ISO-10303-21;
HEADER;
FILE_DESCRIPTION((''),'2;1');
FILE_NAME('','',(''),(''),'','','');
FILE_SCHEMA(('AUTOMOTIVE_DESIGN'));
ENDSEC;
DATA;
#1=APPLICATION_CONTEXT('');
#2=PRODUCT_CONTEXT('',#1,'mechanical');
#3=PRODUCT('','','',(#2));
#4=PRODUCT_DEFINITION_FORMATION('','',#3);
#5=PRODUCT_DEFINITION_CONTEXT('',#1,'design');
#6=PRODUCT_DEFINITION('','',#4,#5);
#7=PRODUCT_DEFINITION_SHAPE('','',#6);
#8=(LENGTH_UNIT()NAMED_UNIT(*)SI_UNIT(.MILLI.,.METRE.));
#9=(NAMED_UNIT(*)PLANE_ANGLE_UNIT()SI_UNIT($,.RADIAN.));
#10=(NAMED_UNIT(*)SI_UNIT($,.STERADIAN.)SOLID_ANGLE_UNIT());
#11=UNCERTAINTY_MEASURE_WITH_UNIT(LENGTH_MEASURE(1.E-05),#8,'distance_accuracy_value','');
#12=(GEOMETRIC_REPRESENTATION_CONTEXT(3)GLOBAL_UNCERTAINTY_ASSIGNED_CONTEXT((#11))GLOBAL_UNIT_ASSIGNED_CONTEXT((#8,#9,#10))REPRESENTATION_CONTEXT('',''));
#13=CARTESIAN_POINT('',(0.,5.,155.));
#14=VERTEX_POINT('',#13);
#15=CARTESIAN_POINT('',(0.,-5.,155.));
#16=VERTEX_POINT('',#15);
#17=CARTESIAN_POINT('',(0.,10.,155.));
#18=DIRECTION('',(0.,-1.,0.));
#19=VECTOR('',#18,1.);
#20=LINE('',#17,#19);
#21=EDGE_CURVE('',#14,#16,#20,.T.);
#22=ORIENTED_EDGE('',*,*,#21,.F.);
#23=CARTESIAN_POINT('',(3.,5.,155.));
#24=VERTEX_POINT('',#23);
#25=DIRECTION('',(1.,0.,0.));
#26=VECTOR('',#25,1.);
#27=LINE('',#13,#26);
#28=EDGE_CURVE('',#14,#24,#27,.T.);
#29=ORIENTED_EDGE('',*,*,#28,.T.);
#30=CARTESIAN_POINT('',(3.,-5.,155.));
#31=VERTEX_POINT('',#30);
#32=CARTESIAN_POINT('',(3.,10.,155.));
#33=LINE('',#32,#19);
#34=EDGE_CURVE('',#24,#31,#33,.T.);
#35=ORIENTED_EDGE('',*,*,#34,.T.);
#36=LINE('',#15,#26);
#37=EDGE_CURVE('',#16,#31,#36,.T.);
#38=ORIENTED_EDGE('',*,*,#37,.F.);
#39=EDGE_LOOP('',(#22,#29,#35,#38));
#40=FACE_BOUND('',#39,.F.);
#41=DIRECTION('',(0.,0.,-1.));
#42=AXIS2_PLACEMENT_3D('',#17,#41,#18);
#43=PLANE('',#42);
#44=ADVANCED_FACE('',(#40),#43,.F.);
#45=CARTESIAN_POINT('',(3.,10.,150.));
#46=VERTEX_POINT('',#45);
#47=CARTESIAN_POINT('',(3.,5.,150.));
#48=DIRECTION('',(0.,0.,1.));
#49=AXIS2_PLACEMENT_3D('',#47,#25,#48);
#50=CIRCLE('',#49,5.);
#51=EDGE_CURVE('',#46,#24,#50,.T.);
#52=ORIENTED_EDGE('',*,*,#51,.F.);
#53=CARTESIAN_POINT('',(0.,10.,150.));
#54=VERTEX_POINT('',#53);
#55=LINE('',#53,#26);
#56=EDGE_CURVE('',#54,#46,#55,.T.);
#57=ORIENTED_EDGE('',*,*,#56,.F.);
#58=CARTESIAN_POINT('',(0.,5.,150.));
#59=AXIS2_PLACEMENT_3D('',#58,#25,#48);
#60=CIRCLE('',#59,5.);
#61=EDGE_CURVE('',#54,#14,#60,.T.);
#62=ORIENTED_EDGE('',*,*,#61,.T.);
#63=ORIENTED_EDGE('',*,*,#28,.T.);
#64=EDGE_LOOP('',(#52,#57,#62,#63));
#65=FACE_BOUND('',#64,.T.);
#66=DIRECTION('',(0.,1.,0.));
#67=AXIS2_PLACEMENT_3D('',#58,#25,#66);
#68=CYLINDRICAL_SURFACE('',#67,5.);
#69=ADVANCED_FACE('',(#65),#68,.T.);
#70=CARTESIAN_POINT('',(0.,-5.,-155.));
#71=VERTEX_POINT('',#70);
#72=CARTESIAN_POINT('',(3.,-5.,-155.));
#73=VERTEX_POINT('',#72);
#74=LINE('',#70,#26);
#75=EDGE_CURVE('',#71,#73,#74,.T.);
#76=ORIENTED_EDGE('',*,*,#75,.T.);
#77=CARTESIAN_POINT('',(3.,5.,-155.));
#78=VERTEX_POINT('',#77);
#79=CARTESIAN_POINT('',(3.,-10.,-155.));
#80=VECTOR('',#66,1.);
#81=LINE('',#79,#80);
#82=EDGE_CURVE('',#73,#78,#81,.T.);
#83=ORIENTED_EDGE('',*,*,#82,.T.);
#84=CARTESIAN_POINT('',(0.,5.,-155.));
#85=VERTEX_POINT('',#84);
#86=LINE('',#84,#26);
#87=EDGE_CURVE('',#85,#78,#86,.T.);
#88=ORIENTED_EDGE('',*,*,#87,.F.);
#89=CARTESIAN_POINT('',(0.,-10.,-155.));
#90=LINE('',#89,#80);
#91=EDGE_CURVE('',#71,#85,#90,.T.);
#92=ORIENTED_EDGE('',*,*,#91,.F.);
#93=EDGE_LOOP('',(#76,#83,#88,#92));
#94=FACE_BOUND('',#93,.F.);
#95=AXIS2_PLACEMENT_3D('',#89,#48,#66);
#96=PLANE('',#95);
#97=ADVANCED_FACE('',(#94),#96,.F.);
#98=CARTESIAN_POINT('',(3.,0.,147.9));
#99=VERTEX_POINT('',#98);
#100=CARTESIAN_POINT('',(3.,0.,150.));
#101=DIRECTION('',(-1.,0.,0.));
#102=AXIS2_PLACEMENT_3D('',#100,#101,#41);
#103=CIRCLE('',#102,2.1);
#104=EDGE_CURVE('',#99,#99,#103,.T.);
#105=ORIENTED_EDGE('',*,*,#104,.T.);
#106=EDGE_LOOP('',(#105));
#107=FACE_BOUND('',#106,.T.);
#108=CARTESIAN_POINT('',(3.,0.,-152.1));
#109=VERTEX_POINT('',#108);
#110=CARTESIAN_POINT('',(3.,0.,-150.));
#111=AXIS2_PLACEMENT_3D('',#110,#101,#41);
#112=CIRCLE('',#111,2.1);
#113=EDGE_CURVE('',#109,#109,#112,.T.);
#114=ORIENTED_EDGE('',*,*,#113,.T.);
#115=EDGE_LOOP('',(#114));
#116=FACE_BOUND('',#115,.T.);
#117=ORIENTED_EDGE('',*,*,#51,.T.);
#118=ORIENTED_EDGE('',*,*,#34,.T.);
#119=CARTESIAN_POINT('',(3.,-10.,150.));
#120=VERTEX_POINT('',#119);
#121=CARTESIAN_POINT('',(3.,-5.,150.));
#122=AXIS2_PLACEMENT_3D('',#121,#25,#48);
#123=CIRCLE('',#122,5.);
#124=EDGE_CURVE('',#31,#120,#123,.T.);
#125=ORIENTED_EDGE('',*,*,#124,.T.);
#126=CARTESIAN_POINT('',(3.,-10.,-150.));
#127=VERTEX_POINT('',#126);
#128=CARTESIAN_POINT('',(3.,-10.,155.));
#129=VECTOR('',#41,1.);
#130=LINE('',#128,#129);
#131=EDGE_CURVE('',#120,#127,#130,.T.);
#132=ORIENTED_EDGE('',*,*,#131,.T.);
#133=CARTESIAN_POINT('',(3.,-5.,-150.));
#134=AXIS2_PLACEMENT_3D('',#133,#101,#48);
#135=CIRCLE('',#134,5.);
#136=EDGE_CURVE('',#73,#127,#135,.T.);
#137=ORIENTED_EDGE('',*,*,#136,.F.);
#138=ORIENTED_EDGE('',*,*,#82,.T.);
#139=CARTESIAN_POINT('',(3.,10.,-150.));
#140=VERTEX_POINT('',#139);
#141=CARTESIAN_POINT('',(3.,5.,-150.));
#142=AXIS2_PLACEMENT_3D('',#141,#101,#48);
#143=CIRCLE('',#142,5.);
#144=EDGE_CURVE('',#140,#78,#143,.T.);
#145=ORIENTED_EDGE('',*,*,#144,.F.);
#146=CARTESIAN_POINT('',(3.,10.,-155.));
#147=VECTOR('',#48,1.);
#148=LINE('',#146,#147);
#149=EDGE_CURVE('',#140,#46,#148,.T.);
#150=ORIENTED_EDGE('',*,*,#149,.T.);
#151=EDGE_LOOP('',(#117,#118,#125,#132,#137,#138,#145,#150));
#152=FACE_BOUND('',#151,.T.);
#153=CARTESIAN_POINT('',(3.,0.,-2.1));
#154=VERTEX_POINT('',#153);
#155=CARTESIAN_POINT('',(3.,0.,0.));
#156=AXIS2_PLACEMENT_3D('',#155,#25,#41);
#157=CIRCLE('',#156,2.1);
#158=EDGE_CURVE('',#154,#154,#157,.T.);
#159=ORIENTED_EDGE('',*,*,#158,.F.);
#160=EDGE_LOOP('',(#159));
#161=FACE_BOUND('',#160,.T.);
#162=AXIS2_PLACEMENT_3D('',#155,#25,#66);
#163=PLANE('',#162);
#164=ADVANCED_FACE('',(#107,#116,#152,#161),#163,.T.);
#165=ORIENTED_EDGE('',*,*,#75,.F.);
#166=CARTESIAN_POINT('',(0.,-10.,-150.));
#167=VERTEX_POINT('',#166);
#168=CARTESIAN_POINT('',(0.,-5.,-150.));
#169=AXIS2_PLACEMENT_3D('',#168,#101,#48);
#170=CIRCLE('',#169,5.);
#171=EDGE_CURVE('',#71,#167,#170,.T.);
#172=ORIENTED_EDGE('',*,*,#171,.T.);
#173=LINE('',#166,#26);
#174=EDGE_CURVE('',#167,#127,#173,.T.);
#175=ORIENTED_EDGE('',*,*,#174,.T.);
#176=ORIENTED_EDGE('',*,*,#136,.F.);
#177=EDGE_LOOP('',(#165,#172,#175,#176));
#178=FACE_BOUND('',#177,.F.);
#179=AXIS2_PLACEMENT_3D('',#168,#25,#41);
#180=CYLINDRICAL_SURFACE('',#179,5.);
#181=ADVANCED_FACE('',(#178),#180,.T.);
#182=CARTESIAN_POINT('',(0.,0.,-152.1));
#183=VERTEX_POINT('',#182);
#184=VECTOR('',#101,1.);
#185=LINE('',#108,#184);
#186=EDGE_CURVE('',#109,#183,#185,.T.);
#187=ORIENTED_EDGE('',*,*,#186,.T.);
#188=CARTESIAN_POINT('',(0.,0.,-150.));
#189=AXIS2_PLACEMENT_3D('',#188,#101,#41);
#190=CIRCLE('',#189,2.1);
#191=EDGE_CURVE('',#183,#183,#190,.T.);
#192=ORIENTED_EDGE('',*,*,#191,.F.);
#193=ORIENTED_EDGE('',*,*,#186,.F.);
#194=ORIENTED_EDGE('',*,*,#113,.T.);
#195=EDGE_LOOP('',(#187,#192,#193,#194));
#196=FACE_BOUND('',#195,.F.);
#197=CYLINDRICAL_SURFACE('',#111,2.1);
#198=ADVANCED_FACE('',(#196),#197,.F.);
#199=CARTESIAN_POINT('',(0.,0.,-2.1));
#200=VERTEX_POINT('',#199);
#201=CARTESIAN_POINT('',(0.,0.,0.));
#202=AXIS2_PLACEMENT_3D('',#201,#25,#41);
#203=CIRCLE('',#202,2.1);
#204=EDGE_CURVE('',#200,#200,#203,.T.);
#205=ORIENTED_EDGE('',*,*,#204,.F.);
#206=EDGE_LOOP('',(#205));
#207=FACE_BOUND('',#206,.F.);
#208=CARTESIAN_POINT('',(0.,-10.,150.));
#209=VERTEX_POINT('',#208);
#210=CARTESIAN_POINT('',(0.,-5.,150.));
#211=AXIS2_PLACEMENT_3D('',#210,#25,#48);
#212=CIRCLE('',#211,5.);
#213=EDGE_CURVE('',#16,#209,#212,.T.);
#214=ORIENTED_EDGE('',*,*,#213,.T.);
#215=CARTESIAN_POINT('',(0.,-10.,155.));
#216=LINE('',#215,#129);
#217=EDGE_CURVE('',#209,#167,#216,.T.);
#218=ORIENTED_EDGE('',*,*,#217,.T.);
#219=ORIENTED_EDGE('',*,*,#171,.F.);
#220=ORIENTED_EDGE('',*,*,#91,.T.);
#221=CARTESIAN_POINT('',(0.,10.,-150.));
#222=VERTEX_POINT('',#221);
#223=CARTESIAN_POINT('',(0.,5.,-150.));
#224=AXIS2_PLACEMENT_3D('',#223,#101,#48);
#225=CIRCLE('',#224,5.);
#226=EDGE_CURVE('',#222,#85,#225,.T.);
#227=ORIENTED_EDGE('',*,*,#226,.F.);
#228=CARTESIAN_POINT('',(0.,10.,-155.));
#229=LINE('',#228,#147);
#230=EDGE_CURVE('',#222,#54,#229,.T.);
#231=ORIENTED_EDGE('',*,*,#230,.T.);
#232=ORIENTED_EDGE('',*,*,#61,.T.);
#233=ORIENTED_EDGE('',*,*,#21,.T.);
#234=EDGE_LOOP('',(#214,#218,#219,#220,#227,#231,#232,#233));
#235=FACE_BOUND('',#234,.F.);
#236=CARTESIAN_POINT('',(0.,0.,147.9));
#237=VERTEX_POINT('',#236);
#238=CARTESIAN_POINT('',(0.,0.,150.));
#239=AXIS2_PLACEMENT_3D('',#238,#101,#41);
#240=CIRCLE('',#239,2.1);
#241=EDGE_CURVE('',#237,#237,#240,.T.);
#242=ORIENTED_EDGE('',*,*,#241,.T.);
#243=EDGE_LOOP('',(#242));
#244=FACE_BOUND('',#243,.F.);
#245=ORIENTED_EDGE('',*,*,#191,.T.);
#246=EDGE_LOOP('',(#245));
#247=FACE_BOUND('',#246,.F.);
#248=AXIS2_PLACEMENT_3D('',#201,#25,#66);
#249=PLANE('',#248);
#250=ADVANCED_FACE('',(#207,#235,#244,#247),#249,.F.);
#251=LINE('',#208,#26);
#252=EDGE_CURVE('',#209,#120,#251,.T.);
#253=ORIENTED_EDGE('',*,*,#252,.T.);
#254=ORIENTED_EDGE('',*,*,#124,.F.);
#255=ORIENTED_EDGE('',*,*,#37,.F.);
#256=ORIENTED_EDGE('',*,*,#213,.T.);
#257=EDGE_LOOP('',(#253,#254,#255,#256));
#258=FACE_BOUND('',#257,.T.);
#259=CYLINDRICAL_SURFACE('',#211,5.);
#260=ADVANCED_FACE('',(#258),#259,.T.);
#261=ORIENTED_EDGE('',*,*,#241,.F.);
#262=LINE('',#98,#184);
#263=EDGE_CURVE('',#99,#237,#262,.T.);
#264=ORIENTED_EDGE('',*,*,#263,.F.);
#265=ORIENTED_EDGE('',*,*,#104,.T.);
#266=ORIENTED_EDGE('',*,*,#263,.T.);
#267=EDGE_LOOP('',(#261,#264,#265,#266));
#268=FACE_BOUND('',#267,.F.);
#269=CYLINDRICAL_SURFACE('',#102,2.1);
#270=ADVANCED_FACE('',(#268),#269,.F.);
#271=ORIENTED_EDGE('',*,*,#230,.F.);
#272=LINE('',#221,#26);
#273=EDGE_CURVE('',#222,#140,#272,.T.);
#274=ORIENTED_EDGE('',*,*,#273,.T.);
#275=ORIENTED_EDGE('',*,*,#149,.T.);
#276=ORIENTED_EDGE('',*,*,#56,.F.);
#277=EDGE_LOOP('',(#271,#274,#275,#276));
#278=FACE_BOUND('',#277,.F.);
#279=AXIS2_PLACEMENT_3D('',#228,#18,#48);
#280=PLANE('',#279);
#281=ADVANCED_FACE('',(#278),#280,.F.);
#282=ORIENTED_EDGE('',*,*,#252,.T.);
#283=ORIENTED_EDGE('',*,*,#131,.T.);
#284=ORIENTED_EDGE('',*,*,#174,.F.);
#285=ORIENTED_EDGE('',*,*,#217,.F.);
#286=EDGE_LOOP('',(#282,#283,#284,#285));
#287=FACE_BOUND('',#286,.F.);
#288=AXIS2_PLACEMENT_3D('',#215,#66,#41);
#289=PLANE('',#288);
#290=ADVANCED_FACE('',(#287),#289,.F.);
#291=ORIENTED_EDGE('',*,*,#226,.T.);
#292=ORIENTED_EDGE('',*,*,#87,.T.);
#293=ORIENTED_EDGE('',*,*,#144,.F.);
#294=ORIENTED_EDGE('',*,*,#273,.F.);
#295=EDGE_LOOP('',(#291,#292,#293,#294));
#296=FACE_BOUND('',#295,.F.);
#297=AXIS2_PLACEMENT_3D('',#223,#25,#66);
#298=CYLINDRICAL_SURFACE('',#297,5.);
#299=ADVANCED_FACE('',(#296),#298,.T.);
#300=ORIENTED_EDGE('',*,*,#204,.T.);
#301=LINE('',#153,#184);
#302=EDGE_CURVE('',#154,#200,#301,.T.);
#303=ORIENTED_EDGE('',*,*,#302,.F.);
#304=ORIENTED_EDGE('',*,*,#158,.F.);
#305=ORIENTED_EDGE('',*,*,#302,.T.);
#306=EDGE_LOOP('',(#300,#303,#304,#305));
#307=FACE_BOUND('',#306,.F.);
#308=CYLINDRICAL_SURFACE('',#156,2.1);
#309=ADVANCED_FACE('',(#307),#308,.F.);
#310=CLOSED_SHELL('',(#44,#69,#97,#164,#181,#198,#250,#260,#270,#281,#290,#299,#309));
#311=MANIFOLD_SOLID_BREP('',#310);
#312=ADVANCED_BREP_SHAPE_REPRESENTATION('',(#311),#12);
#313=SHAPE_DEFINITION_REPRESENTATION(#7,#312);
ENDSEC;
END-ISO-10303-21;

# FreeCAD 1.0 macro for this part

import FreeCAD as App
import Part
import Sketcher


def edges_at(feature, points):
    """Names of the edges that pass closest to the given points."""
    edges = feature.Shape.Edges
    near = lambda p: min(range(len(edges)), key=lambda i: edges[i].distToShape(Part.Vertex(*p))[0])
    return sorted({f"Edge{near(p) + 1}" for p in points})


def add_polygon(sketch, points):
    """Adds a closed chain of lines whose ends are joined by coincident constraints."""
    first, n = sketch.GeometryCount, len(points)
    for a, b in zip(points, points[1:] + points[:1]):
        sketch.addGeometry(Part.LineSegment(App.Vector(*a, 0), App.Vector(*b, 0)), False)
    for i in range(n):
        sketch.addConstraint(Sketcher.Constraint("Coincident", first + i, 2, first + (i + 1) % n, 1))

doc = App.newDocument("Part")
body = doc.addObject("PartDesign::Body", "Body")

# Sketch on YZ plane
sketch1 = doc.addObject("Sketcher::SketchObject", "Sketch")
body.addObject(sketch1)
sketch1.AttachmentSupport = (doc.YZ_Plane, [""])
sketch1.MapMode = "FlatFace"
add_polygon(sketch1, [(10, -155), (10, 155), (-10, 155), (-10, -155)])  # lines 0-3
sketch1.addConstraint([
    Sketcher.Constraint("Vertical", 0),
    Sketcher.Constraint("Horizontal", 1),
    Sketcher.Constraint("Vertical", 2),
    Sketcher.Constraint("Horizontal", 3),
    Sketcher.Constraint("Symmetric", 0, 2, 2, 2, -1, 1),
    Sketcher.Constraint("DistanceX", 1, 2, 1, 1, 20.0),
    Sketcher.Constraint("DistanceY", 0, 1, 0, 2, 310.0),
])
pad1 = doc.addObject("PartDesign::Pad", "Pad")
body.addObject(pad1)
pad1.Profile = sketch1
pad1.Length = 3

# Sketch on YZ plane
sketch2 = doc.addObject("Sketcher::SketchObject", "Sketch001")
body.addObject(sketch2)
sketch2.AttachmentSupport = (doc.YZ_Plane, [""])
sketch2.MapMode = "FlatFace"
sketch2.AttachmentOffset = App.Placement(App.Vector(0, 0, 3), App.Rotation())
sketch2.addGeometry([
    Part.Circle(App.Vector(0, -150, 0), App.Vector(0, 0, 1), 2.1),
    Part.Circle(App.Vector(0, 150, 0), App.Vector(0, 0, 1), 2.1),
], False)
sketch2.addConstraint([
    Sketcher.Constraint("Equal", 0, 1),
    Sketcher.Constraint("Symmetric", 0, 3, 1, 3, -1, 1),
    Sketcher.Constraint("PointOnObject", 0, 3, -2),
    Sketcher.Constraint("Diameter", 0, 4.2),
    Sketcher.Constraint("DistanceY", 0, 3, -1, 1, 150.0),
])
doc.recompute()
hole = doc.addObject("PartDesign::Hole", "Hole")
body.addObject(hole)
hole.Profile = sketch2
hole.ThreadType = "None"
hole.Diameter = 4.2
hole.DepthType = "ThroughAll"
doc.recompute()

fillet = doc.addObject("PartDesign::Fillet", "Fillet")
body.addObject(fillet)
fillet.Base = (hole, edges_at(hole, [
    (1.5, 10, 155),
    (1.5, -10, 155),
    (1.5, -10, -155),
    (1.5, 10, -155),
]))
fillet.Radius = 5

# Sketch on YZ plane
sketch3 = doc.addObject("Sketcher::SketchObject", "Sketch002")
body.addObject(sketch3)
sketch3.AttachmentSupport = (doc.YZ_Plane, [""])
sketch3.MapMode = "FlatFace"
sketch3.AttachmentOffset = App.Placement(App.Vector(0, 0, 3), App.Rotation())
sketch3.addGeometry(Part.Circle(App.Vector(0, 0, 0), App.Vector(0, 0, 1), 2.1), False)
sketch3.addConstraint([
    Sketcher.Constraint("Coincident", 0, 3, -1, 1),
    Sketcher.Constraint("Diameter", 0, 4.2),
])
pocket1 = doc.addObject("PartDesign::Pocket", "Pocket")
body.addObject(pocket1)
pocket1.Profile = sketch3
pocket1.Type = "ThroughAll"

doc.recompute()
